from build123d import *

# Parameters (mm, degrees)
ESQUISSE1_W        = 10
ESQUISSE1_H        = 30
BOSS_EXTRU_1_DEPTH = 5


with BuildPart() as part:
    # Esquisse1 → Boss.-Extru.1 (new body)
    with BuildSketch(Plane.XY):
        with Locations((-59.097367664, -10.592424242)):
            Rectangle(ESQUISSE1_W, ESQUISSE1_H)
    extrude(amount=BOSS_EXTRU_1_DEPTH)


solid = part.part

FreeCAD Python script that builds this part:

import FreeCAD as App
import Part
import Sketcher
from FreeCAD import Vector
Q = App.Units.Quantity

doc = App.newDocument("Part")
body = doc.addObject("PartDesign::Body", "Body")

sketch1 = doc.addObject("Sketcher::SketchObject", "Sketch")
body.addObject(sketch1)
sketch1.AttachmentSupport = (doc.XY_Plane, [""])
sketch1.MapMode = "FlatFace"
sketch1.addGeometry(Part.LineSegment(Vector(-64, 4, 0), Vector(-64, -26, 0)), False)
sketch1.addGeometry(Part.LineSegment(Vector(-64, -26, 0), Vector(-54, -26, 0)), False)
sketch1.addGeometry(Part.LineSegment(Vector(-54, -26, 0), Vector(-54, 4, 0)), False)
sketch1.addGeometry(Part.LineSegment(Vector(-54, 4, 0), Vector(-64, 4, 0)), False)
sketch1.addConstraint(Sketcher.Constraint("Coincident", 0, 2, 1, 1))
sketch1.addConstraint(Sketcher.Constraint("Coincident", 1, 2, 2, 1))
sketch1.addConstraint(Sketcher.Constraint("Coincident", 2, 2, 3, 1))
sketch1.addConstraint(Sketcher.Constraint("Coincident", 3, 2, 0, 1))
sketch1.addConstraint(Sketcher.Constraint("Vertical", 0))
sketch1.addConstraint(Sketcher.Constraint("Horizontal", 1))
sketch1.addConstraint(Sketcher.Constraint("Vertical", 2))
sketch1.addConstraint(Sketcher.Constraint("Horizontal", 3))
sketch1.addConstraint(Sketcher.Constraint("DistanceX", 1, 1, 1, 2, Q("10 mm")))
sketch1.addConstraint(Sketcher.Constraint("DistanceY", 0, 2, 0, 1, Q("30 mm")))
sketch1.addConstraint(Sketcher.Constraint("DistanceX", 0, 2, -1, 1, Q("64.097368 mm")))
sketch1.addConstraint(Sketcher.Constraint("DistanceY", 0, 2, -1, 1, Q("25.592424 mm")))
pad1 = doc.addObject("PartDesign::Pad", "Pad")
body.addObject(pad1)
pad1.Profile = sketch1
pad1.Length = 5

doc.recompute()
